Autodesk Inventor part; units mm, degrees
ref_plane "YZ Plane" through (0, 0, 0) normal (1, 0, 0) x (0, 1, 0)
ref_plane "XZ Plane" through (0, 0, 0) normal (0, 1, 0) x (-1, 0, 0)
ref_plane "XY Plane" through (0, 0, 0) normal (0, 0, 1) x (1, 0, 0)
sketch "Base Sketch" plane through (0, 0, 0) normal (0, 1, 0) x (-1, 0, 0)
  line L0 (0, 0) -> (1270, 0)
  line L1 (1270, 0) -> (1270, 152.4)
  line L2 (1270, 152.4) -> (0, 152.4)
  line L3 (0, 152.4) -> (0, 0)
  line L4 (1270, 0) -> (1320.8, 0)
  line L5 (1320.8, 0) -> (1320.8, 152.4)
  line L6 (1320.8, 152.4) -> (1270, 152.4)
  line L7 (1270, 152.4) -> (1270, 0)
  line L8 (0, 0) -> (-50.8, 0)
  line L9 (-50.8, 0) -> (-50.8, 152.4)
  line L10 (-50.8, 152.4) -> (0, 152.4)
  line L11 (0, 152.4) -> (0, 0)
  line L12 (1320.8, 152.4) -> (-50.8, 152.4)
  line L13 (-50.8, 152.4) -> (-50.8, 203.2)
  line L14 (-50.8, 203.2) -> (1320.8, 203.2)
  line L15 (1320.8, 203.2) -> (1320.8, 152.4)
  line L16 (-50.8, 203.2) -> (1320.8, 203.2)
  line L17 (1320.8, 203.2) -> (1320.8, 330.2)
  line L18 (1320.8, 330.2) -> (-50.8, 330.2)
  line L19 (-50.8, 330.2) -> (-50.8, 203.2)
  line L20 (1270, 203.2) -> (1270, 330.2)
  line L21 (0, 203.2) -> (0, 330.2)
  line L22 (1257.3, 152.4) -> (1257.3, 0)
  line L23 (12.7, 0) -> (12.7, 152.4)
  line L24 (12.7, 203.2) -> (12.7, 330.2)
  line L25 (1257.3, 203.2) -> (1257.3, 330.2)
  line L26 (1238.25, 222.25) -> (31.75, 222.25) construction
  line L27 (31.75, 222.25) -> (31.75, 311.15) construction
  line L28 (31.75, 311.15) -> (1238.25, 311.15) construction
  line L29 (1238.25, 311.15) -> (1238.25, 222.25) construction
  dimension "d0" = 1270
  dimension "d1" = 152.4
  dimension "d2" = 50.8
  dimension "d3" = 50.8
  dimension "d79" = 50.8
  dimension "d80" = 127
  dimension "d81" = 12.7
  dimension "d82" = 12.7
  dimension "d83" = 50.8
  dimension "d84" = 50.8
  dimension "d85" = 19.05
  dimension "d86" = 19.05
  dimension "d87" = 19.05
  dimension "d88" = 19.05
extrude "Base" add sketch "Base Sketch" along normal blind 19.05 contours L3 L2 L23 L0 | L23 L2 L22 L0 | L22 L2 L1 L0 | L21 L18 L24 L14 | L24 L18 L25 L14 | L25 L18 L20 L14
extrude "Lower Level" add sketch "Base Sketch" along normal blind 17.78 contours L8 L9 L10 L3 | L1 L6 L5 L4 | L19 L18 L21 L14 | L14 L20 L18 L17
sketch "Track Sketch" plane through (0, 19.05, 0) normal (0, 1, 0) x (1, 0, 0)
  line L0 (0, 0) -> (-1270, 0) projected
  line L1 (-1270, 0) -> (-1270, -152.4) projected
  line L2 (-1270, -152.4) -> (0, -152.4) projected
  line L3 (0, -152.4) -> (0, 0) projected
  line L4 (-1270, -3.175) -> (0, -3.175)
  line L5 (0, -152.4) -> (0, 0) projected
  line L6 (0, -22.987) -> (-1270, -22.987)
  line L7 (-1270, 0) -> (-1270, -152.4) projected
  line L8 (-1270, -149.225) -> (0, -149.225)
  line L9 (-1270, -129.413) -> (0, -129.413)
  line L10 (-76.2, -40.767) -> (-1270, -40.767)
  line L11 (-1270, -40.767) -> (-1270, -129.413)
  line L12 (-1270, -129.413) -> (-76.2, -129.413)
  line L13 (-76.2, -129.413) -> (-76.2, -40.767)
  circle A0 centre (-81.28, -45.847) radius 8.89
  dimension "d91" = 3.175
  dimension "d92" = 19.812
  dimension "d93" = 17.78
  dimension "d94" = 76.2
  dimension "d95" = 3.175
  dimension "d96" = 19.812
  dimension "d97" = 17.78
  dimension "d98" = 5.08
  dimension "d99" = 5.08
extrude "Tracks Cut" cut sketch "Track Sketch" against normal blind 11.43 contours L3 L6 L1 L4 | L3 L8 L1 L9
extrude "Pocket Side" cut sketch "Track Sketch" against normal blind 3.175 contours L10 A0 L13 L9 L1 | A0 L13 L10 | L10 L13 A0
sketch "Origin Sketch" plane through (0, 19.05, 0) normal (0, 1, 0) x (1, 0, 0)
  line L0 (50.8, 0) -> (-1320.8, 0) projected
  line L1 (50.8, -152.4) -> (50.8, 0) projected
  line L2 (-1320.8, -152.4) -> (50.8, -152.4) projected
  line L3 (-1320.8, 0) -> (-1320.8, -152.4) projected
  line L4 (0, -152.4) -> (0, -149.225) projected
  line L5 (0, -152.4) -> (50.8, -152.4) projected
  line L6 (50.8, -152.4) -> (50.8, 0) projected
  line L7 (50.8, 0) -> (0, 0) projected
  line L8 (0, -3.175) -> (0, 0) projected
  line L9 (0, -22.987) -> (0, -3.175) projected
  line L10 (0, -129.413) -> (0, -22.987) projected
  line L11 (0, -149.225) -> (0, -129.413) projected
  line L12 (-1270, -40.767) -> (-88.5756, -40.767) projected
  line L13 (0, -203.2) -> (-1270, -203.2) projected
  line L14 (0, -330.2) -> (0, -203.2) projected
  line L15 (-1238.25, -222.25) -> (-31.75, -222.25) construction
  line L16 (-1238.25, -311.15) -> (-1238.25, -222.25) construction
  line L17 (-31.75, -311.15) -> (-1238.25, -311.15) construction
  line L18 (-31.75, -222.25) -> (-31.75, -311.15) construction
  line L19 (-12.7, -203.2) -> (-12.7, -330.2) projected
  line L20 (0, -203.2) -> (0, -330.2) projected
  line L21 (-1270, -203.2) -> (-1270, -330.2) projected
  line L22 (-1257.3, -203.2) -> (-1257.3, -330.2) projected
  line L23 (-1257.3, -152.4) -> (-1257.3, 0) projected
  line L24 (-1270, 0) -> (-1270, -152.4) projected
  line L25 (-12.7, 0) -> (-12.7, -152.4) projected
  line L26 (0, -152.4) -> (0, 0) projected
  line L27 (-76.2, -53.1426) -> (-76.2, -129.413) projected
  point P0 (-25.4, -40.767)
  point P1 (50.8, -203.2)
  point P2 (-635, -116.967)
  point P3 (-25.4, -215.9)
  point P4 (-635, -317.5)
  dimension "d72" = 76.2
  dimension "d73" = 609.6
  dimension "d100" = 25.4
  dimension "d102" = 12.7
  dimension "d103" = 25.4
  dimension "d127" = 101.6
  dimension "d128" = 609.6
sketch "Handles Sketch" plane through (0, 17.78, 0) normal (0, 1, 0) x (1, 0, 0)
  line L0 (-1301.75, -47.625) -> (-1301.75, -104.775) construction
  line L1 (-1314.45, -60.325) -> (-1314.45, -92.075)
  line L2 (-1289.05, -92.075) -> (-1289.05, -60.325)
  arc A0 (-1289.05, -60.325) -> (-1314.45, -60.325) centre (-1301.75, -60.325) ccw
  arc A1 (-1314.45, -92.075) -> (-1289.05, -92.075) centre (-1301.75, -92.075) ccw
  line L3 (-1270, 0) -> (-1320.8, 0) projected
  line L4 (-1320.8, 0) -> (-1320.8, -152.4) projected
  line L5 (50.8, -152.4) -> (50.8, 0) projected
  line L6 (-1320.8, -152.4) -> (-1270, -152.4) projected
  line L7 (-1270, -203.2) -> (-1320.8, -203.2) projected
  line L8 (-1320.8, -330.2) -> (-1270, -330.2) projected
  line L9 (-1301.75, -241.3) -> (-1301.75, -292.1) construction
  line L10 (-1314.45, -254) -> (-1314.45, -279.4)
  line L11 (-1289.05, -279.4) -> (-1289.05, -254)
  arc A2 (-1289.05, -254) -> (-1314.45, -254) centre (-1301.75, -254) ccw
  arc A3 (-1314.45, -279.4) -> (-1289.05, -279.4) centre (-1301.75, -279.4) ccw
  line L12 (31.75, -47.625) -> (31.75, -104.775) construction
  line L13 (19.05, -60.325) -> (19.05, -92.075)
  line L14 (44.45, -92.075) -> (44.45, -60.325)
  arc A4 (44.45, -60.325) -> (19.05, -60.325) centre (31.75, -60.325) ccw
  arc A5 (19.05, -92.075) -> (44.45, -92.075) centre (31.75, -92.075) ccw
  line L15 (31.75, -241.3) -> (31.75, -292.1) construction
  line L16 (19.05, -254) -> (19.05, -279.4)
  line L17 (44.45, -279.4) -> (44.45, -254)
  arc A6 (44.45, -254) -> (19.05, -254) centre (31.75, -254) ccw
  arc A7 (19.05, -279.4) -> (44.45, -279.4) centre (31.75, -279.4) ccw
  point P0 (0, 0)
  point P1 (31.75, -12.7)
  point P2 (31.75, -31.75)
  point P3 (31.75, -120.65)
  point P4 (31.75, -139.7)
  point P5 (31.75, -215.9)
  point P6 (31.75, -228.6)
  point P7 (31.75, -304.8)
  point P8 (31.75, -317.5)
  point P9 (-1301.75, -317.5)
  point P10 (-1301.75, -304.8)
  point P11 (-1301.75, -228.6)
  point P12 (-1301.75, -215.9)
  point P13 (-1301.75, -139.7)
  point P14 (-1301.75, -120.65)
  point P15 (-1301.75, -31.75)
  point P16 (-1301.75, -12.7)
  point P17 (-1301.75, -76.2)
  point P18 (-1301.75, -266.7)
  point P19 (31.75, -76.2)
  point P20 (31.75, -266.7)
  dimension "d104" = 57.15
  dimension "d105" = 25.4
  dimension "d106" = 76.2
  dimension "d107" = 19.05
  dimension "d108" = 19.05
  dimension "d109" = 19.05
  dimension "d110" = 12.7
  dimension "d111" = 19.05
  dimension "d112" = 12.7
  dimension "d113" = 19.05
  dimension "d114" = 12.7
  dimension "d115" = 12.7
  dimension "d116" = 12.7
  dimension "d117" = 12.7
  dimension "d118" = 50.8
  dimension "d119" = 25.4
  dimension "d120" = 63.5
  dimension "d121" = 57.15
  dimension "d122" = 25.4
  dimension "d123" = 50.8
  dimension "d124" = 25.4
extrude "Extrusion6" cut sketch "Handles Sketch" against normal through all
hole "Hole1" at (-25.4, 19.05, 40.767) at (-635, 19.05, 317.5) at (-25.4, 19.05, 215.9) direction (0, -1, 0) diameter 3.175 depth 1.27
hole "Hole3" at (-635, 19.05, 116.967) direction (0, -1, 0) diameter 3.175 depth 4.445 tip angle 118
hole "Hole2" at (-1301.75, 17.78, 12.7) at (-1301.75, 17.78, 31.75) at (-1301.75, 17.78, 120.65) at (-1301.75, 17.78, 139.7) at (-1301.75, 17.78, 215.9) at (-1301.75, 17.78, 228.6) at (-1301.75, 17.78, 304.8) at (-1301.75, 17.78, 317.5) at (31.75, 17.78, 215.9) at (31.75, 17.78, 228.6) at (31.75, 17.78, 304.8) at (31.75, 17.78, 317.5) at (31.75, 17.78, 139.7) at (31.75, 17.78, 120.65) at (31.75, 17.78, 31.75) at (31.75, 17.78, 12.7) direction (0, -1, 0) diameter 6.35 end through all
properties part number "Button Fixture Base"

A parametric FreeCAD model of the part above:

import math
import FreeCAD as App
import Part
import Sketcher

V = App.Vector
Q = App.Units.Quantity


def add_polygon(sketch, points):
    """Adds a closed chain of lines whose ends are joined by coincident constraints."""
    first, n = sketch.GeometryCount, len(points)
    for a, b in zip(points, points[1:] + points[:1]):
        sketch.addGeometry(Part.LineSegment(App.Vector(*a, 0), App.Vector(*b, 0)), False)
    for i in range(n):
        sketch.addConstraint(Sketcher.Constraint("Coincident", first + i, 2, first + (i + 1) % n, 1))

doc = App.newDocument("Part")
params = doc.addObject("Spreadsheet::Sheet", "Params")
for row, (alias, value) in enumerate([
    ("sketch1_width", "50 in"),
    ("sketch1_height", "6 in"),
    ("sketch1_height2", "5 in"),
    ("pad1_length", "0.75 in"),
    ("sketch2_width", "2 in"),
    ("sketch2_height", "6 in"),
    ("sketch2_height2", "5 in"),
    ("pad2_length", "0.7 in"),
    ("sketch3_height", "0.78 in"),
    ("sketch3_width", "50 in"),
    ("pocket1_length", "0.45 in"),
    ("sketch4_radius", "0.35 in"),
    ("sketch4_width", "47 in"),
    ("sketch4_height", "3.49 in"),
    ("pocket2_length", "0.125 in"),
    ("sketch5_radius", "0.5 in"),
    ("sketch5_height", "1 in"),
    ("sketch5_height2", "1.25 in"),
    ("sketch6_diameter", "0.125 in"),
    ("hole_diameter", "0.125 in"),
    ("hole_depth", "0.05 in"),
    ("sketch7_diameter", "0.125 in"),
    ("hole2_diameter", "0.125 in"),
    ("hole2_depth", "0.175 in"),
    ("sketch8_diameter", "0.25 in"),
    ("hole3_diameter", "0.25 in"),
], start=1):
    params.set(f"A{row}", alias)
    params.set(f"B{row}", "=" + value)
    params.setAlias(f"B{row}", alias)

body = doc.addObject("PartDesign::Body", "Body")
body.AllowCompound = True

# Sketch on XZ plane
sketch1 = body.newObject("Sketcher::SketchObject", "Sketch")
sketch1.AttachmentSupport = (doc.getObject("XZ_Plane"), [""])
sketch1.MapMode = "FlatFace"
add_polygon(sketch1, [(0, 152.4), (0, 0), (-1270, 0), (-1270, 152.4)])  # lines 0-3
add_polygon(sketch1, [(0, 330.2), (0, 203.2), (-1270, 203.2), (-1270, 330.2)])  # lines 4-7
sketch1.addConstraint([
    Sketcher.Constraint("Vertical", 0),
    Sketcher.Constraint("Horizontal", 1),
    Sketcher.Constraint("Vertical", 2),
    Sketcher.Constraint("Horizontal", 3),
    Sketcher.Constraint("Vertical", 4),
    Sketcher.Constraint("Horizontal", 5),
    Sketcher.Constraint("Vertical", 6),
    Sketcher.Constraint("Horizontal", 7),
    Sketcher.Constraint("Coincident", 0, 2, -1, 1),
    Sketcher.Constraint("PointOnObject", 4, 2, -2),
    Sketcher.Constraint("Vertical", 2, 2, 5, 2),
    Sketcher.Constraint("DistanceX", 1, 2, 1, 1, Q("50 in")),
    Sketcher.Constraint("DistanceY", 0, 2, 0, 1, Q("6 in")),
    Sketcher.Constraint("DistanceY", 4, 2, 4, 1, Q("5 in")),
    Sketcher.Constraint("DistanceY", 3, 2, 4, 2, Q("2 in")),
])
sketch1.setExpression("Constraints[19]", "Params.sketch1_width")
sketch1.setExpression("Constraints[20]", "Params.sketch1_height")
sketch1.setExpression("Constraints[21]", "Params.sketch1_height2")
pad1 = body.newObject("PartDesign::Pad", "Pad")
pad1.Profile = sketch1
pad1.setExpression("Length", "Params.pad1_length")
pad1.Reversed = True

# Sketch on XZ plane
sketch2 = body.newObject("Sketcher::SketchObject", "Sketch001")
sketch2.AttachmentSupport = (doc.getObject("XZ_Plane"), [""])
sketch2.MapMode = "FlatFace"
add_polygon(sketch2, [(50.8, 0), (0, 0), (0, 152.4), (50.8, 152.4)])  # lines 0-3
add_polygon(sketch2, [(-1270, 152.4), (-1270, 0), (-1320.8, 0), (-1320.8, 152.4)])  # lines 4-7
add_polygon(sketch2, [(50.8, 330.2), (50.8, 203.2), (0, 203.2), (0, 330.2)])  # lines 8-11
add_polygon(sketch2, [(-1270, 203.2), (-1320.8, 203.2), (-1320.8, 330.2), (-1270, 330.2)])  # lines 12-15
sketch2.addConstraint([
    Sketcher.Constraint("Horizontal", 0),
    Sketcher.Constraint("Vertical", 1),
    Sketcher.Constraint("Horizontal", 2),
    Sketcher.Constraint("Vertical", 3),
    Sketcher.Constraint("Vertical", 4),
    Sketcher.Constraint("Horizontal", 5),
    Sketcher.Constraint("Vertical", 6),
    Sketcher.Constraint("Horizontal", 7),
    Sketcher.Constraint("Vertical", 8),
    Sketcher.Constraint("Horizontal", 9),
    Sketcher.Constraint("Vertical", 10),
    Sketcher.Constraint("Horizontal", 11),
    Sketcher.Constraint("Horizontal", 12),
    Sketcher.Constraint("Vertical", 13),
    Sketcher.Constraint("Horizontal", 14),
    Sketcher.Constraint("Vertical", 15),
    Sketcher.Constraint("Coincident", 0, 2, -1, 1),
    Sketcher.Constraint("PointOnObject", 4, 2, -1),
    Sketcher.Constraint("PointOnObject", 9, 2, -2),
    Sketcher.Constraint("Horizontal", 2, 2, 6, 2),
    Sketcher.Constraint("Horizontal", 9, 2, 12, 2),
    Sketcher.Constraint("Horizontal", 11, 2, 13, 2),
    Sketcher.Constraint("Vertical", 3, 2, 8, 2),
    Sketcher.Constraint("Vertical", 6, 2, 12, 2),
    Sketcher.Constraint("Vertical", 7, 2, 14, 2),
    Sketcher.Constraint("Equal", 2, 5),
    Sketcher.Constraint("DistanceX", 0, 2, 0, 1, Q("2 in")),
    Sketcher.Constraint("DistanceY", 1, 1, 1, 2, Q("6 in")),
    Sketcher.Constraint("DistanceY", 8, 2, 8, 1, Q("5 in")),
    Sketcher.Constraint("DistanceX", 4, 2, -1, 1, Q("50 in")),
    Sketcher.Constraint("DistanceY", 2, 2, 8, 2, Q("2 in")),
])
sketch2.setExpression("Constraints[42]", "Params.sketch2_width")
sketch2.setExpression("Constraints[43]", "Params.sketch2_height")
sketch2.setExpression("Constraints[44]", "Params.sketch2_height2")
pad2 = body.newObject("PartDesign::Pad", "Pad001")
pad2.Profile = sketch2
pad2.setExpression("Length", "Params.pad2_length")
pad2.Reversed = True

# Sketch on XZ plane
sketch3 = body.newObject("Sketcher::SketchObject", "Sketch002")
sketch3.AttachmentSupport = (doc.getObject("XZ_Plane"), [""])
sketch3.MapMode = "FlatFace"
sketch3.AttachmentOffset = App.Placement(V(0, 0, -0.75 * 25.4), App.Rotation())
add_polygon(sketch3, [(0, 22.987), (0, 3.175), (-1270, 3.175), (-1270, 22.987)])  # lines 0-3
add_polygon(sketch3, [(0, 149.225), (0, 129.413), (-1270, 129.413), (-1270, 149.225)])  # lines 4-7
sketch3.addConstraint([
    Sketcher.Constraint("Vertical", 0),
    Sketcher.Constraint("Horizontal", 1),
    Sketcher.Constraint("Vertical", 2),
    Sketcher.Constraint("Horizontal", 3),
    Sketcher.Constraint("Vertical", 4),
    Sketcher.Constraint("Horizontal", 5),
    Sketcher.Constraint("Vertical", 6),
    Sketcher.Constraint("Horizontal", 7),
    Sketcher.Constraint("PointOnObject", 0, 2, -2),
    Sketcher.Constraint("PointOnObject", 4, 2, -2),
    Sketcher.Constraint("Vertical", 2, 2, 5, 2),
    Sketcher.Constraint("Equal", 2, 4),
    Sketcher.Constraint("DistanceY", 0, 2, 0, 1, Q("0.78 in")),
    Sketcher.Constraint("DistanceX", 1, 2, 1, 1, Q("50 in")),
    Sketcher.Constraint("DistanceY", -1, 1, 0, 2, Q("0.125 in")),
    Sketcher.Constraint("DistanceY", 3, 2, 4, 2, Q("4.19 in")),
])
sketch3.setExpression("Constraints[20]", "Params.sketch3_height")
sketch3.setExpression("Constraints[21]", "Params.sketch3_width")
pocket1 = body.newObject("PartDesign::Pocket", "Pocket")
pocket1.Profile = sketch3
pocket1.setExpression("Length", "Params.pocket1_length")
pocket1.Reversed = True

# Sketch on XZ plane
sketch4 = body.newObject("Sketcher::SketchObject", "Sketch003")
sketch4.AttachmentSupport = (doc.getObject("XZ_Plane"), [""])
sketch4.MapMode = "FlatFace"
sketch4.AttachmentOffset = App.Placement(V(0, 0, -0.75 * 25.4), App.Rotation())
sketch4.addGeometry([
    Part.LineSegment(V(-88.575595, 40.767, 0), V(-1270, 40.767, 0)),  # 0
    Part.LineSegment(V(-1270, 40.767, 0), V(-1270, 129.413, 0)),  # 1
    Part.LineSegment(V(-1270, 129.413, 0), V(-76.2, 129.413, 0)),  # 2
    Part.LineSegment(V(-76.2, 129.413, 0), V(-76.2, 53.142595, 0)),  # 3
    Part.ArcOfCircle(Part.Circle(V(-81.28, 45.847, 0), V(0, 0, 1), 8.89), math.radians(-145.150095), math.radians(55.150095)),  # 4
], False)
sketch4.addConstraint([
    Sketcher.Constraint("Coincident", 0, 2, 1, 1),
    Sketcher.Constraint("Coincident", 1, 2, 2, 1),
    Sketcher.Constraint("Coincident", 2, 2, 3, 1),
    Sketcher.Constraint("Coincident", 3, 2, 4, 2),
    Sketcher.Constraint("Coincident", 4, 1, 0, 1),
    Sketcher.Constraint("Horizontal", 0),
    Sketcher.Constraint("Vertical", 1),
    Sketcher.Constraint("Horizontal", 2),
    Sketcher.Constraint("Vertical", 3),
    Sketcher.Constraint("Radius", 4, Q("0.35 in")),
    Sketcher.Constraint("DistanceX", 2, 2, -1, 1, Q("3 in")),
    Sketcher.Constraint("DistanceY", 0, 2, 4, 3, Q("0.2 in")),
    Sketcher.Constraint("DistanceX", 4, 3, 2, 2, Q("0.2 in")),
    Sketcher.Constraint("DistanceX", 2, 1, 2, 2, Q("47 in")),
    Sketcher.Constraint("DistanceY", 1, 1, 1, 2, Q("3.49 in")),
    Sketcher.Constraint("DistanceY", -1, 1, 4, 3, Q("1.805 in")),
])
sketch4.setExpression("Constraints[9]", "Params.sketch4_radius")
sketch4.setExpression("Constraints[13]", "Params.sketch4_width")
sketch4.setExpression("Constraints[14]", "Params.sketch4_height")
pocket2 = body.newObject("PartDesign::Pocket", "Pocket001")
pocket2.Profile = sketch4
pocket2.setExpression("Length", "Params.pocket2_length")
pocket2.Reversed = True

# Sketch on XZ plane
sketch5 = body.newObject("Sketcher::SketchObject", "Sketch004")
sketch5.AttachmentSupport = (doc.getObject("XZ_Plane"), [""])
sketch5.MapMode = "FlatFace"
sketch5.AttachmentOffset = App.Placement(V(0, 0, -0.7 * 25.4), App.Rotation())
sketch5.addGeometry([
    Part.ArcOfCircle(Part.Circle(V(-1301.75, 60.325, 0), V(0, 0, 1), 12.7), math.radians(180), math.radians(360)),  # 0
    Part.LineSegment(V(-1314.45, 60.325, 0), V(-1314.45, 92.075, 0)),  # 1
    Part.ArcOfCircle(Part.Circle(V(-1301.75, 92.075, 0), V(0, 0, 1), 12.7), math.radians(0), math.radians(180)),  # 2
    Part.LineSegment(V(-1289.05, 92.075, 0), V(-1289.05, 60.325, 0)),  # 3
    Part.ArcOfCircle(Part.Circle(V(-1301.75, 254, 0), V(0, 0, 1), 12.7), math.radians(180), math.radians(360)),  # 4
    Part.LineSegment(V(-1314.45, 254, 0), V(-1314.45, 279.4, 0)),  # 5
    Part.ArcOfCircle(Part.Circle(V(-1301.75, 279.4, 0), V(0, 0, 1), 12.7), math.radians(0), math.radians(180)),  # 6
    Part.LineSegment(V(-1289.05, 279.4, 0), V(-1289.05, 254, 0)),  # 7
    Part.ArcOfCircle(Part.Circle(V(31.75, 60.325, 0), V(0, 0, 1), 12.7), math.radians(180), math.radians(360)),  # 8
    Part.LineSegment(V(19.05, 60.325, 0), V(19.05, 92.075, 0)),  # 9
    Part.ArcOfCircle(Part.Circle(V(31.75, 92.075, 0), V(0, 0, 1), 12.7), math.radians(0), math.radians(180)),  # 10
    Part.LineSegment(V(44.45, 92.075, 0), V(44.45, 60.325, 0)),  # 11
    Part.ArcOfCircle(Part.Circle(V(31.75, 254, 0), V(0, 0, 1), 12.7), math.radians(180), math.radians(360)),  # 12
    Part.LineSegment(V(19.05, 254, 0), V(19.05, 279.4, 0)),  # 13
    Part.ArcOfCircle(Part.Circle(V(31.75, 279.4, 0), V(0, 0, 1), 12.7), math.radians(0), math.radians(180)),  # 14
    Part.LineSegment(V(44.45, 279.4, 0), V(44.45, 254, 0)),  # 15
], False)
sketch5.addConstraint([
    Sketcher.Constraint("Tangent", 0, 1, 1, 1),
    Sketcher.Constraint("Tangent", 1, 2, 2, 2),
    Sketcher.Constraint("Tangent", 2, 1, 3, 1),
    Sketcher.Constraint("Tangent", 3, 2, 0, 2),
    Sketcher.Constraint("Tangent", 4, 1, 5, 1),
    Sketcher.Constraint("Tangent", 5, 2, 6, 2),
    Sketcher.Constraint("Tangent", 6, 1, 7, 1),
    Sketcher.Constraint("Tangent", 7, 2, 4, 2),
    Sketcher.Constraint("Tangent", 8, 1, 9, 1),
    Sketcher.Constraint("Tangent", 9, 2, 10, 2),
    Sketcher.Constraint("Tangent", 10, 1, 11, 1),
    Sketcher.Constraint("Tangent", 11, 2, 8, 2),
    Sketcher.Constraint("Tangent", 12, 1, 13, 1),
    Sketcher.Constraint("Tangent", 13, 2, 14, 2),
    Sketcher.Constraint("Tangent", 14, 1, 15, 1),
    Sketcher.Constraint("Tangent", 15, 2, 12, 2),
    Sketcher.Constraint("Vertical", 1),
    Sketcher.Constraint("Vertical", 3),
    Sketcher.Constraint("Vertical", 5),
    Sketcher.Constraint("Vertical", 7),
    Sketcher.Constraint("Vertical", 9),
    Sketcher.Constraint("Vertical", 11),
    Sketcher.Constraint("Vertical", 13),
    Sketcher.Constraint("Vertical", 15),
    Sketcher.Constraint("Equal", 2, 4),
    Sketcher.Constraint("Equal", 6, 8),
    Sketcher.Constraint("Equal", 10, 12),
    Sketcher.Constraint("Horizontal", 0, 3, 8, 3),
    Sketcher.Constraint("Horizontal", 2, 3, 10, 3),
    Sketcher.Constraint("Horizontal", 4, 3, 12, 3),
    Sketcher.Constraint("Horizontal", 6, 3, 14, 3),
    Sketcher.Constraint("Vertical", 2, 3, 4, 3),
    Sketcher.Constraint("Vertical", 10, 3, 12, 3),
    Sketcher.Constraint("Radius", 0, Q("0.5 in")),
    Sketcher.Constraint("DistanceY", 5, 1, 5, 2, Q("1 in")),
    Sketcher.Constraint("DistanceX", -1, 1, 8, 1, Q("0.75 in")),
    Sketcher.Constraint("DistanceY", -1, 1, 4, 3, Q("10 in")),
    Sketcher.Constraint("DistanceX", 0, 1, 8, 3, Q("53 in")),
    Sketcher.Constraint("DistanceY", 1, 1, 1, 2, Q("1.25 in")),
    Sketcher.Constraint("DistanceY", -1, 1, 0, 3, Q("2.375 in")),
])
sketch5.setExpression("Constraints[33]", "Params.sketch5_radius")
sketch5.setExpression("Constraints[34]", "Params.sketch5_height")
sketch5.setExpression("Constraints[38]", "Params.sketch5_height2")
pocket3 = body.newObject("PartDesign::Pocket", "Pocket002")
pocket3.Profile = sketch5
pocket3.Type = "ThroughAll"
pocket3.Reversed = True

# Sketch on XZ plane
sketch6 = body.newObject("Sketcher::SketchObject", "Sketch005")
sketch6.AttachmentSupport = (doc.getObject("XZ_Plane"), [""])
sketch6.MapMode = "FlatFace"
sketch6.AttachmentOffset = App.Placement(V(0, 0, -0.75 * 25.4), App.Rotation())
sketch6.addGeometry([
    Part.Circle(V(-25.4, 40.767, 0), V(0, 0, 1), 1.5875),
    Part.Circle(V(-635, 317.5, 0), V(0, 0, 1), 1.5875),
    Part.Circle(V(-25.4, 215.9, 0), V(0, 0, 1), 1.5875),
], False)
sketch6.addConstraint([
    Sketcher.Constraint("Equal", 0, 1),
    Sketcher.Constraint("Equal", 1, 2),
    Sketcher.Constraint("Vertical", 0, 3, 2, 3),
    Sketcher.Constraint("Diameter", 0, Q("0.125 in")),
    Sketcher.Constraint("DistanceX", 0, 3, -1, 1, Q("1 in")),
    Sketcher.Constraint("DistanceX", 1, 3, -1, 1, Q("25 in")),
    Sketcher.Constraint("DistanceY", 2, 3, 1, 3, Q("4 in")),
    Sketcher.Constraint("DistanceY", -1, 1, 1, 3, Q("12.5 in")),
    Sketcher.Constraint("DistanceY", -1, 1, 0, 3, Q("1.605 in")),
])
sketch6.setExpression("Constraints[3]", "Params.sketch6_diameter")
doc.recompute()
hole = body.newObject("PartDesign::Hole", "Hole")
hole.Profile = sketch6
hole.ThreadType = "None"
hole.setExpression("Diameter", "Params.hole_diameter")
hole.DepthType = "Dimension"
hole.setExpression("Depth", "Params.hole_depth")
hole.DrillPoint = "Flat"
hole.Reversed = True

# Sketch on XZ plane
sketch7 = body.newObject("Sketcher::SketchObject", "Sketch006")
sketch7.AttachmentSupport = (doc.getObject("XZ_Plane"), [""])
sketch7.MapMode = "FlatFace"
sketch7.AttachmentOffset = App.Placement(V(0, 0, -0.75 * 25.4), App.Rotation())
sketch7.addGeometry(Part.Circle(V(-635, 116.967, 0), V(0, 0, 1), 1.5875), False)
sketch7.addConstraint([
    Sketcher.Constraint("Diameter", 0, Q("0.125 in")),
    Sketcher.Constraint("DistanceX", 0, 3, -1, 1, Q("25 in")),
    Sketcher.Constraint("DistanceY", -1, 1, 0, 3, Q("4.605 in")),
])
sketch7.setExpression("Constraints[0]", "Params.sketch7_diameter")
doc.recompute()
hole2 = body.newObject("PartDesign::Hole", "Hole001")
hole2.Profile = sketch7
hole2.ThreadType = "None"
hole2.setExpression("Diameter", "Params.hole2_diameter")
hole2.DepthType = "Dimension"
hole2.setExpression("Depth", "Params.hole2_depth")
hole2.DrillPoint = "Angled"
hole2.DrillPointAngle = 118
hole2.Reversed = True

# Sketch on XZ plane
sketch8 = body.newObject("Sketcher::SketchObject", "Sketch007")
sketch8.AttachmentSupport = (doc.getObject("XZ_Plane"), [""])
sketch8.MapMode = "FlatFace"
sketch8.AttachmentOffset = App.Placement(V(0, 0, -0.7 * 25.4), App.Rotation())
sketch8.addGeometry([
    Part.Circle(V(-1301.75, 12.7, 0), V(0, 0, 1), 3.175),  # 0
    Part.Circle(V(-1301.75, 31.75, 0), V(0, 0, 1), 3.175),  # 1
    Part.Circle(V(-1301.75, 120.65, 0), V(0, 0, 1), 3.175),  # 2
    Part.Circle(V(-1301.75, 139.7, 0), V(0, 0, 1), 3.175),  # 3
    Part.Circle(V(-1301.75, 215.9, 0), V(0, 0, 1), 3.175),  # 4
    Part.Circle(V(-1301.75, 228.6, 0), V(0, 0, 1), 3.175),  # 5
    Part.Circle(V(-1301.75, 304.8, 0), V(0, 0, 1), 3.175),  # 6
    Part.Circle(V(-1301.75, 317.5, 0), V(0, 0, 1), 3.175),  # 7
    Part.Circle(V(31.75, 215.9, 0), V(0, 0, 1), 3.175),  # 8
    Part.Circle(V(31.75, 228.6, 0), V(0, 0, 1), 3.175),  # 9
    Part.Circle(V(31.75, 304.8, 0), V(0, 0, 1), 3.175),  # 10
    Part.Circle(V(31.75, 317.5, 0), V(0, 0, 1), 3.175),  # 11
    Part.Circle(V(31.75, 139.7, 0), V(0, 0, 1), 3.175),  # 12
    Part.Circle(V(31.75, 120.65, 0), V(0, 0, 1), 3.175),  # 13
    Part.Circle(V(31.75, 31.75, 0), V(0, 0, 1), 3.175),  # 14
    Part.Circle(V(31.75, 12.7, 0), V(0, 0, 1), 3.175),  # 15
], False)
sketch8.addConstraint([
    Sketcher.Constraint("Equal", 0, 1),
    Sketcher.Constraint("Equal", 1, 2),
    Sketcher.Constraint("Equal", 2, 3),
    Sketcher.Constraint("Equal", 3, 4),
    Sketcher.Constraint("Equal", 4, 5),
    Sketcher.Constraint("Equal", 5, 6),
    Sketcher.Constraint("Equal", 6, 7),
    Sketcher.Constraint("Equal", 7, 8),
    Sketcher.Constraint("Equal", 8, 9),
    Sketcher.Constraint("Equal", 9, 10),
    Sketcher.Constraint("Equal", 10, 11),
    Sketcher.Constraint("Equal", 11, 12),
    Sketcher.Constraint("Equal", 12, 13),
    Sketcher.Constraint("Equal", 13, 14),
    Sketcher.Constraint("Equal", 14, 15),
    Sketcher.Constraint("Horizontal", 4, 3, 8, 3),
    Sketcher.Constraint("Horizontal", 5, 3, 9, 3),
    Sketcher.Constraint("Horizontal", 6, 3, 10, 3),
    Sketcher.Constraint("Horizontal", 7, 3, 11, 3),
    Sketcher.Constraint("Horizontal", 3, 3, 12, 3),
    Sketcher.Constraint("Horizontal", 2, 3, 13, 3),
    Sketcher.Constraint("Horizontal", 1, 3, 14, 3),
    Sketcher.Constraint("Horizontal", 0, 3, 15, 3),
    Sketcher.Constraint("Vertical", 0, 3, 1, 3),
    Sketcher.Constraint("Vertical", 1, 3, 2, 3),
    Sketcher.Constraint("Vertical", 2, 3, 3, 3),
    Sketcher.Constraint("Vertical", 3, 3, 4, 3),
    Sketcher.Constraint("Vertical", 4, 3, 5, 3),
    Sketcher.Constraint("Vertical", 5, 3, 6, 3),
    Sketcher.Constraint("Vertical", 6, 3, 7, 3),
    Sketcher.Constraint("Vertical", 8, 3, 9, 3),
    Sketcher.Constraint("Vertical", 9, 3, 10, 3),
    Sketcher.Constraint("Vertical", 10, 3, 11, 3),
    Sketcher.Constraint("Vertical", 11, 3, 12, 3),
    Sketcher.Constraint("Vertical", 12, 3, 13, 3),
    Sketcher.Constraint("Vertical", 13, 3, 14, 3),
    Sketcher.Constraint("Vertical", 14, 3, 15, 3),
    Sketcher.Constraint("Diameter", 0, Q("0.25 in")),
    Sketcher.Constraint("DistanceY", -1, 1, 5, 3, Q("9 in")),
    Sketcher.Constraint("DistanceY", -1, 1, 6, 3, Q("12 in")),
    Sketcher.Constraint("DistanceY", 0, 3, 3, 3, Q("5 in")),
    Sketcher.Constraint("DistanceY", 3, 3, 4, 3, Q("3 in")),
    Sketcher.Constraint("DistanceY", 4, 3, 7, 3, Q("4 in")),
    Sketcher.Constraint("DistanceY", -1, 1, 0, 3, Q("0.5 in")),
    Sketcher.Constraint("DistanceY", 1, 3, 2, 3, Q("3.5 in")),
    Sketcher.Constraint("DistanceX", 4, 3, 8, 3, Q("52.5 in")),
    Sketcher.Constraint("DistanceX", 0, 3, -1, 1, Q("51.25 in")),
    Sketcher.Constraint("DistanceY", -1, 1, 1, 3, Q("1.25 in")),
])
sketch8.setExpression("Constraints[37]", "Params.sketch8_diameter")
doc.recompute()
hole3 = body.newObject("PartDesign::Hole", "Hole002")
hole3.Profile = sketch8
hole3.ThreadType = "None"
hole3.setExpression("Diameter", "Params.hole3_diameter")
hole3.DepthType = "ThroughAll"
hole3.Reversed = True

doc.recompute()
